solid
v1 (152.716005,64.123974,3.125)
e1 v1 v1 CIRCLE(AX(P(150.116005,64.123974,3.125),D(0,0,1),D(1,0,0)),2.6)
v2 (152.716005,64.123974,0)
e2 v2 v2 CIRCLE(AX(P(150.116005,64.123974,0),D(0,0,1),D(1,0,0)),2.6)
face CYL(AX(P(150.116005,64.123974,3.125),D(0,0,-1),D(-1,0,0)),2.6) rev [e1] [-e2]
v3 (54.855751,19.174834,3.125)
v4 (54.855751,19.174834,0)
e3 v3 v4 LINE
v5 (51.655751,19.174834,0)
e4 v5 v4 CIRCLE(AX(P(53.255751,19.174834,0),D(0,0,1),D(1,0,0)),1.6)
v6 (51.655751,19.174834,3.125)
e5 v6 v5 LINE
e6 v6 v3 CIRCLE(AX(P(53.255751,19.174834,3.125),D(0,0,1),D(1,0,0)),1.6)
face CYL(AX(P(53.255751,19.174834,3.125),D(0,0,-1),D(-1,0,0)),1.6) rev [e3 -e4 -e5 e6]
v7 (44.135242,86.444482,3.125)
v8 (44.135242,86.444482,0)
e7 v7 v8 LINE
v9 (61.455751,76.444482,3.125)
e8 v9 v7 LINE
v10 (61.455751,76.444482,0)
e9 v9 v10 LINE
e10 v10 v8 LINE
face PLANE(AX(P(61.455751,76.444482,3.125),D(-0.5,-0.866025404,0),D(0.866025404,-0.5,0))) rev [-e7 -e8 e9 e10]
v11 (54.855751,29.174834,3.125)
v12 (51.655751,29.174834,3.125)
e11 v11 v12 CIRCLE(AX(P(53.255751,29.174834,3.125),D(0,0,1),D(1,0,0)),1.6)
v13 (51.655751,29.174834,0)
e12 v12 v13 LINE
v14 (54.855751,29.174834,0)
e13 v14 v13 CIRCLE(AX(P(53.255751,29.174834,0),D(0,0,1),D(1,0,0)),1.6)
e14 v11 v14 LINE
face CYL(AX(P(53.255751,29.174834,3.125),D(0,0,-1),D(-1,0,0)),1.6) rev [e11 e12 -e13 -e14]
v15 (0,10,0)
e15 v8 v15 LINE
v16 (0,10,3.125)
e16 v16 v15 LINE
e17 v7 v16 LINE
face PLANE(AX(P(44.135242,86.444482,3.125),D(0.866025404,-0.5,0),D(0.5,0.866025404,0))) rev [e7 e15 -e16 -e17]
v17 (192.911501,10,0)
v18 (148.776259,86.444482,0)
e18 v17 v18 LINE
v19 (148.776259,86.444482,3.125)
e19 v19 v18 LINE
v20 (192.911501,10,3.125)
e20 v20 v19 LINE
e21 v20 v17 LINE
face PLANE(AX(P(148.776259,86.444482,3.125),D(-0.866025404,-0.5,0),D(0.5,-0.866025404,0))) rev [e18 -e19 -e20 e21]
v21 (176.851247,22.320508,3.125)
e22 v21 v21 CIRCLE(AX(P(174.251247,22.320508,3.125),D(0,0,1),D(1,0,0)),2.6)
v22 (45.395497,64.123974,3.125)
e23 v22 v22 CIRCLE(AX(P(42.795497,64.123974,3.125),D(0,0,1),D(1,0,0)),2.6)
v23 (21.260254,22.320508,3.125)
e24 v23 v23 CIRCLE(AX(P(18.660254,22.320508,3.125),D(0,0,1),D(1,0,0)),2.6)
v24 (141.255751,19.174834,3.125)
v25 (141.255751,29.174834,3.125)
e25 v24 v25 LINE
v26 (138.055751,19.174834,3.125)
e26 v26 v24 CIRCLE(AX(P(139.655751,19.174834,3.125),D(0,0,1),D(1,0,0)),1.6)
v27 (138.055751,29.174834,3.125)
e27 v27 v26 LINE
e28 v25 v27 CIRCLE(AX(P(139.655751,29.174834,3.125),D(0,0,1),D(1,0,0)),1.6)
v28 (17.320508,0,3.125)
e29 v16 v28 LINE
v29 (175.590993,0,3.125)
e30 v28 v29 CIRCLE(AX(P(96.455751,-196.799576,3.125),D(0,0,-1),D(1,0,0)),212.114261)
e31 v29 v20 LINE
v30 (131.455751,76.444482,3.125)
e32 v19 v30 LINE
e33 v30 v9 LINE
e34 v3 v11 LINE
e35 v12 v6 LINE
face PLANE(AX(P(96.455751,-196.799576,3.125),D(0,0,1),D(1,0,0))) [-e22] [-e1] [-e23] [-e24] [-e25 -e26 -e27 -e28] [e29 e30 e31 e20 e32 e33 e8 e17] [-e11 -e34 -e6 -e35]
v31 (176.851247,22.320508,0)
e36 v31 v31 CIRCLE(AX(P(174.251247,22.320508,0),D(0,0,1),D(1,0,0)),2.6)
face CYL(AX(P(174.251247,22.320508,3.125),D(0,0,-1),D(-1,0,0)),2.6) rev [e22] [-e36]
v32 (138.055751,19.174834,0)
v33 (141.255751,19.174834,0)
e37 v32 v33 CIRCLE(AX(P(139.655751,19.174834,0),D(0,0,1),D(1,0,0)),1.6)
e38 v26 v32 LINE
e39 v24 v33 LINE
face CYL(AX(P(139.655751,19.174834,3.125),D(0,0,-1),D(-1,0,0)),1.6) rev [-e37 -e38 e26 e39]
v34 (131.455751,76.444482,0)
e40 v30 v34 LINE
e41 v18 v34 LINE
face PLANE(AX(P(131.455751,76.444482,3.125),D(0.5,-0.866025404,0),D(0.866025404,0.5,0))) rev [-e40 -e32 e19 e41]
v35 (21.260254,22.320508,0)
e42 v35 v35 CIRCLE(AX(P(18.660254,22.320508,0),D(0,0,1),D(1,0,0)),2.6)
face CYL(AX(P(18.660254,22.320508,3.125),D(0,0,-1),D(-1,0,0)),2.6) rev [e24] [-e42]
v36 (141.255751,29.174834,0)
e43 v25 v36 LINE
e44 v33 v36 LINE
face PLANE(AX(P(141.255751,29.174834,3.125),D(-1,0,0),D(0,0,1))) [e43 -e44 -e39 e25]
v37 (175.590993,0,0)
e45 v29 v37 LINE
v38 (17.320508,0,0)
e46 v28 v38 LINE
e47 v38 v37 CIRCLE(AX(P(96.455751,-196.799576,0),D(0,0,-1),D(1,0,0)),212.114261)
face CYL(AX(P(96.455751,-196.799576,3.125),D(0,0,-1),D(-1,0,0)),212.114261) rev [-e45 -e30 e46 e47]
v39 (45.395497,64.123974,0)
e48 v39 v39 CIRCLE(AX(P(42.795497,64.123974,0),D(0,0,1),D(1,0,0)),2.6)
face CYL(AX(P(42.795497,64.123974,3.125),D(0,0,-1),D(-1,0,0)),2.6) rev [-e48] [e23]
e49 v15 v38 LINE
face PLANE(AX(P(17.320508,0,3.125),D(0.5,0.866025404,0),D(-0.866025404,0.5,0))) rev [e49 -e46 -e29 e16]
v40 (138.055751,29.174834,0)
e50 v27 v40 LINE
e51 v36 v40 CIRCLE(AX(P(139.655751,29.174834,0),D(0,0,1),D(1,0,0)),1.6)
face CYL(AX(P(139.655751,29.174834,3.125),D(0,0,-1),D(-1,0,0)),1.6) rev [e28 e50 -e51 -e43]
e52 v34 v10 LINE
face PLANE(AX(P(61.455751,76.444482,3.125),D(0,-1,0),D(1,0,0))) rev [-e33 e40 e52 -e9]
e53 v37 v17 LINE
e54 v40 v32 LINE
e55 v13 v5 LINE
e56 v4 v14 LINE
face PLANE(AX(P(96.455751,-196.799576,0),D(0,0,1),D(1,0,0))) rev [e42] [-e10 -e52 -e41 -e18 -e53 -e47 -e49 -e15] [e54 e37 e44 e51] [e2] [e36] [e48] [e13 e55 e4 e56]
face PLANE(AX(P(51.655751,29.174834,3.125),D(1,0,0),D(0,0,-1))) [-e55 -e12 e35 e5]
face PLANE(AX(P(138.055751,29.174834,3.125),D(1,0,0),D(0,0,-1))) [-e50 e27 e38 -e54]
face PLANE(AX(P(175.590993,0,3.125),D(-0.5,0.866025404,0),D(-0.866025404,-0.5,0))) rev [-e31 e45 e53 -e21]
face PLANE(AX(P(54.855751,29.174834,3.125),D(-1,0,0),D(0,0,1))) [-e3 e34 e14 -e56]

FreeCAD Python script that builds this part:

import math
import FreeCAD as App
import Part
import Sketcher

V = App.Vector
Q = App.Units.Quantity

doc = App.newDocument("Part")
body = doc.addObject("PartDesign::Body", "Body")

sketch1 = doc.addObject("Sketcher::SketchObject", "Sketch")
body.addObject(sketch1)
sketch1.AttachmentSupport = (doc.XY_Plane, [""])
sketch1.MapMode = "FlatFace"
sketch1.addGeometry(Part.LineSegment(V(175.6, 0, 0), V(192.9, 10, 0)), False)
sketch1.addGeometry(Part.LineSegment(V(192.9, 10, 0), V(148.8, 86.4, 0)), False)
sketch1.addGeometry(Part.LineSegment(V(148.8, 86.4, 0), V(131.5, 76.4, 0)), False)
sketch1.addGeometry(Part.LineSegment(V(131.5, 76.4, 0), V(61.5, 76.4, 0)), False)
sketch1.addGeometry(Part.LineSegment(V(61.5, 76.4, 0), V(44.1, 86.4, 0)), False)
sketch1.addGeometry(Part.LineSegment(V(44.1, 86.4, 0), V(0, 10, 0)), False)
sketch1.addGeometry(Part.LineSegment(V(0, 10, 0), V(17.3, 0, 0)), False)
sketch1.addGeometry(Part.ArcOfCircle(Part.Circle(V(96.5, -196.8, 0), V(0, 0, 1), 212.1), math.radians(68), math.radians(112)), False)
sketch1.addGeometry(Part.Circle(V(18.7, 22.3, 0), V(0, 0, 1), 2.6), False)
sketch1.addGeometry(Part.ArcOfCircle(Part.Circle(V(53.3, 29.2, 0), V(0, 0, 1), 1.6), math.radians(0), math.radians(180)), False)
sketch1.addGeometry(Part.LineSegment(V(54.9, 29.2, 0), V(54.9, 19.2, 0)), False)
sketch1.addGeometry(Part.ArcOfCircle(Part.Circle(V(53.3, 19.2, 0), V(0, 0, 1), 1.6), math.radians(180), math.radians(360)), False)
sketch1.addGeometry(Part.LineSegment(V(51.7, 19.2, 0), V(51.7, 29.2, 0)), False)
sketch1.addGeometry(Part.Circle(V(174.3, 22.3, 0), V(0, 0, 1), 2.6), False)
sketch1.addGeometry(Part.ArcOfCircle(Part.Circle(V(139.7, 29.2, 0), V(0, 0, 1), 1.6), math.radians(0), math.radians(180)), False)
sketch1.addGeometry(Part.LineSegment(V(141.3, 29.2, 0), V(141.3, 19.2, 0)), False)
sketch1.addGeometry(Part.ArcOfCircle(Part.Circle(V(139.7, 19.2, 0), V(0, 0, 1), 1.6), math.radians(180), math.radians(360)), False)
sketch1.addGeometry(Part.LineSegment(V(138.1, 19.2, 0), V(138.1, 29.2, 0)), False)
sketch1.addGeometry(Part.Circle(V(42.8, 64.1, 0), V(0, 0, 1), 2.6), False)
sketch1.addGeometry(Part.Circle(V(150.1, 64.1, 0), V(0, 0, 1), 2.6), False)
sketch1.addConstraint(Sketcher.Constraint("Coincident", 0, 2, 1, 1))
sketch1.addConstraint(Sketcher.Constraint("Coincident", 1, 2, 2, 1))
sketch1.addConstraint(Sketcher.Constraint("Coincident", 2, 2, 3, 1))
sketch1.addConstraint(Sketcher.Constraint("Coincident", 3, 2, 4, 1))
sketch1.addConstraint(Sketcher.Constraint("Coincident", 4, 2, 5, 1))
sketch1.addConstraint(Sketcher.Constraint("Coincident", 5, 2, 6, 1))
sketch1.addConstraint(Sketcher.Constraint("Coincident", 6, 2, 7, 2))
sketch1.addConstraint(Sketcher.Constraint("Coincident", 7, 1, 0, 1))
sketch1.addConstraint(Sketcher.Constraint("Tangent", 9, 1, 10, 1))
sketch1.addConstraint(Sketcher.Constraint("Tangent", 10, 2, 11, 2))
sketch1.addConstraint(Sketcher.Constraint("Tangent", 11, 1, 12, 1))
sketch1.addConstraint(Sketcher.Constraint("Tangent", 12, 2, 9, 2))
sketch1.addConstraint(Sketcher.Constraint("Tangent", 14, 1, 15, 1))
sketch1.addConstraint(Sketcher.Constraint("Tangent", 15, 2, 16, 2))
sketch1.addConstraint(Sketcher.Constraint("Tangent", 16, 1, 17, 1))
sketch1.addConstraint(Sketcher.Constraint("Tangent", 17, 2, 14, 2))
sketch1.addConstraint(Sketcher.Constraint("Horizontal", 3))
sketch1.addConstraint(Sketcher.Constraint("Vertical", 10))
sketch1.addConstraint(Sketcher.Constraint("Vertical", 12))
sketch1.addConstraint(Sketcher.Constraint("Vertical", 15))
sketch1.addConstraint(Sketcher.Constraint("Vertical", 17))
sketch1.addConstraint(Sketcher.Constraint("Equal", 8, 13))
sketch1.addConstraint(Sketcher.Constraint("Equal", 11, 14))
sketch1.addConstraint(Sketcher.Constraint("Equal", 13, 18))
sketch1.addConstraint(Sketcher.Constraint("Equal", 18, 19))
sketch1.addConstraint(Sketcher.Constraint("PointOnObject", 5, 2, -2))
sketch1.addConstraint(Sketcher.Constraint("PointOnObject", 6, 2, -1))
sketch1.addConstraint(Sketcher.Constraint("PointOnObject", 7, 1, -1))
sketch1.addConstraint(Sketcher.Constraint("Perpendicular", 0, 1))
sketch1.addConstraint(Sketcher.Constraint("Perpendicular", 1, 2))
sketch1.addConstraint(Sketcher.Constraint("Perpendicular", 4, 5))
sketch1.addConstraint(Sketcher.Constraint("Perpendicular", 5, 6))
sketch1.addConstraint(Sketcher.Constraint("Horizontal", 8, 3, 13, 3))
sketch1.addConstraint(Sketcher.Constraint("Horizontal", 9, 3, 14, 3))
sketch1.addConstraint(Sketcher.Constraint("Horizontal", 11, 3, 16, 3))
sketch1.addConstraint(Sketcher.Constraint("Horizontal", 18, 3, 19, 3))
sketch1.addConstraint(Sketcher.Constraint("Horizontal", 1, 2, 4, 2))
sketch1.addConstraint(Sketcher.Constraint("Horizontal", 0, 2, 5, 2))
sketch1.addConstraint(Sketcher.Constraint("Equal", 0, 2))
sketch1.addConstraint(Sketcher.Constraint("Equal", 2, 4))
sketch1.addConstraint(Sketcher.Constraint("Diameter", 8, Q("5.2 mm")))
sketch1.addConstraint(Sketcher.Constraint("Radius", 9, Q("1.6 mm")))
sketch1.addConstraint(Sketcher.Constraint("DistanceX", 3, 2, 3, 1, Q("70 mm")))
sketch1.addConstraint(Sketcher.Constraint("DistanceY", 10, 2, 10, 1, Q("10 mm")))
sketch1.addConstraint(Sketcher.Constraint("Angle", 0, Q("30 deg")))
sketch1.addConstraint(Sketcher.Constraint("Distance", 0, Q("20 mm")))
sketch1.addConstraint(Sketcher.Constraint("DistanceX", 9, 3, 7, 3, Q("43.2 mm")))
sketch1.addConstraint(Sketcher.Constraint("DistanceX", 9, 3, 14, 3, Q("86.4 mm")))
sketch1.addConstraint(Sketcher.Constraint("Radius", 7, Q("212.114261 mm")))
sketch1.addConstraint(Sketcher.Constraint("DistanceX", -1, 1, 0, 2, Q("192.911501 mm")))
sketch1.addConstraint(Sketcher.Constraint("DistanceY", -1, 1, 8, 3, Q("22.320508 mm")))
sketch1.addConstraint(Sketcher.Constraint("DistanceY", 7, 3, 9, 3, Q("225.97441 mm")))
sketch1.addConstraint(Sketcher.Constraint("DistanceY", 9, 3, 18, 3, Q("34.949141 mm")))
sketch1.addConstraint(Sketcher.Constraint("DistanceX", 1, 2, 13, 3, Q("25.474988 mm")))
sketch1.addConstraint(Sketcher.Constraint("DistanceX", 8, 3, 4, 2, Q("25.474988 mm")))
sketch1.addConstraint(Sketcher.Constraint("DistanceX", 6, 2, 18, 3, Q("25.474988 mm")))
sketch1.addConstraint(Sketcher.Constraint("DistanceX", 19, 3, 7, 1, Q("25.474988 mm")))
pad1 = doc.addObject("PartDesign::Pad", "Pad")
body.addObject(pad1)
pad1.Profile = sketch1
pad1.Length = 3.125

doc.recompute()
